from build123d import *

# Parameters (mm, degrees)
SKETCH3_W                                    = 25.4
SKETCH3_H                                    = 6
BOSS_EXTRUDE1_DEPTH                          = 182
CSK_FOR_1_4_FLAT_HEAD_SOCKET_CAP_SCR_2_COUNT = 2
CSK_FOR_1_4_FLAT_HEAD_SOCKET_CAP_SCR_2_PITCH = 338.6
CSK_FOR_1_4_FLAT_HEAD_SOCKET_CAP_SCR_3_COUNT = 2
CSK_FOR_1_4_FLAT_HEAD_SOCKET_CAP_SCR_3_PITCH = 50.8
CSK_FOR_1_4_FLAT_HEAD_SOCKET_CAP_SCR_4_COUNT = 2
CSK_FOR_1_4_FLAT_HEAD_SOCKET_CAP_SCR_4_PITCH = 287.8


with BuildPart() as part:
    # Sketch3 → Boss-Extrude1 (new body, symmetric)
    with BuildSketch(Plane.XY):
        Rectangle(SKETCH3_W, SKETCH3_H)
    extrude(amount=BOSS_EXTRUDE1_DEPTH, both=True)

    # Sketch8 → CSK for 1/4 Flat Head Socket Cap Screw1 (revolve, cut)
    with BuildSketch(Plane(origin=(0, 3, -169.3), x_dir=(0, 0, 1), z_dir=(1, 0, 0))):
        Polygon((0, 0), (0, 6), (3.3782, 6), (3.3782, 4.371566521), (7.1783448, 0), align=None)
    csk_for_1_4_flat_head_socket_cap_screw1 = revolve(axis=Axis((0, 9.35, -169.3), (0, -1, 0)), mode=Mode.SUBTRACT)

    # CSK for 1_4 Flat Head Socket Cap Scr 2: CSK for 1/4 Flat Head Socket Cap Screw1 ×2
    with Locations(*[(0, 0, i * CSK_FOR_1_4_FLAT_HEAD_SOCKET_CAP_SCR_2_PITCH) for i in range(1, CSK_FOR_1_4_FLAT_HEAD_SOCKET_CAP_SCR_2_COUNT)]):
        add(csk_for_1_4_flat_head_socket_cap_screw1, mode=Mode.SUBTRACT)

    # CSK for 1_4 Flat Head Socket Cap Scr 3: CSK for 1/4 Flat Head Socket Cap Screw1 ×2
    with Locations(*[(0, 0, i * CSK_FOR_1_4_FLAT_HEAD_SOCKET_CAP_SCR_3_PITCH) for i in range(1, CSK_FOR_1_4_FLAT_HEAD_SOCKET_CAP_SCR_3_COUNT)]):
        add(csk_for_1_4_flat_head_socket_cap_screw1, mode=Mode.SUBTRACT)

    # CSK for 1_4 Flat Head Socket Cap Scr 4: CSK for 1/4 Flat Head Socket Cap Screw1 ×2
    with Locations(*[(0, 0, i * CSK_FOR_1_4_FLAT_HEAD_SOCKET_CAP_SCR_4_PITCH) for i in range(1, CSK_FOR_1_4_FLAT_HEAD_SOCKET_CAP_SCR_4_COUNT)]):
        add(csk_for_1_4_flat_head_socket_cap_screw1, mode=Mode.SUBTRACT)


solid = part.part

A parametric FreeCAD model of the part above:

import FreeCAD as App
import Part
import Sketcher
Q = App.Units.Quantity

doc = App.newDocument("Part")
params = doc.addObject("Spreadsheet::Sheet", "Params")
for row, (alias, value) in enumerate([
    ("sketch1_height", "6 mm"),
    ("sketch1_width", "25.4 mm"),
    ("pad1_length", "364 mm"),
    ("sketch2_width", "6 mm"),
    ("groove_angle", "360 deg"),
    ("linearpattern_pitch", "338.6 mm"),
    ("linearpattern2_pitch", "50.8 mm"),
    ("linearpattern3_pitch", "287.8 mm"),
], start=1):
    params.set(f"A{row}", alias)
    params.set(f"B{row}", "=" + value)
    params.setAlias(f"B{row}", alias)

body = doc.addObject("PartDesign::Body", "Body")

sketch1 = body.newObject("Sketcher::SketchObject", "Sketch")
sketch1.AttachmentSupport = (doc.getObject("XY_Plane"), [""])
sketch1.MapMode = "FlatFace"
sketch1.addGeometry([
    Part.LineSegment(App.Vector(-13, 3, 0), App.Vector(-13, -3, 0)),
    Part.LineSegment(App.Vector(-13, -3, 0), App.Vector(13, -3, 0)),
    Part.LineSegment(App.Vector(13, -3, 0), App.Vector(13, 3, 0)),
    Part.LineSegment(App.Vector(13, 3, 0), App.Vector(-13, 3, 0)),
], False)
sketch1.addConstraint([
    Sketcher.Constraint("Coincident", 0, 2, 1, 1),
    Sketcher.Constraint("Coincident", 1, 2, 2, 1),
    Sketcher.Constraint("Coincident", 2, 2, 3, 1),
    Sketcher.Constraint("Coincident", 3, 2, 0, 1),
    Sketcher.Constraint("Vertical", 0),
    Sketcher.Constraint("Horizontal", 1),
    Sketcher.Constraint("Vertical", 2),
    Sketcher.Constraint("Horizontal", 3),
    Sketcher.Constraint("Symmetric", 0, 2, 2, 2, -1, 1),
    Sketcher.Constraint("DistanceY", 0, 2, 0, 1, 6.0),
    Sketcher.Constraint("DistanceX", 1, 1, 1, 2, 25.4),
])
sketch1.setExpression("Constraints[9]", "Params.sketch1_height")
sketch1.setExpression("Constraints[10]", "Params.sketch1_width")
pad1 = body.newObject("PartDesign::Pad", "Pad")
pad1.Profile = sketch1
pad1.setExpression("Length", "Params.pad1_length")
pad1.Midplane = True

sketch2 = body.newObject("Sketcher::SketchObject", "Sketch001")
sketch2.AttachmentSupport = (doc.getObject("YZ_Plane"), [""])
sketch2.MapMode = "FlatFace"
sketch2.addGeometry([
    Part.LineSegment(App.Vector(-3, -169.3, 0), App.Vector(3, -169.3, 0)),
    Part.LineSegment(App.Vector(3, -169.3, 0), App.Vector(3, -162.1, 0)),
    Part.LineSegment(App.Vector(3, -162.1, 0), App.Vector(-1.4, -165.9, 0)),
    Part.LineSegment(App.Vector(-1.4, -165.9, 0), App.Vector(-3, -165.9, 0)),
    Part.LineSegment(App.Vector(-3, -165.9, 0), App.Vector(-3, -169.3, 0)),
], False)
sketch2.addGeometry(Part.LineSegment(App.Vector(3, -169.3, 0), App.Vector(-3, -169.3, 0)), True)
sketch2.addConstraint([
    Sketcher.Constraint("Coincident", 0, 2, 1, 1),
    Sketcher.Constraint("Coincident", 1, 2, 2, 1),
    Sketcher.Constraint("Coincident", 2, 2, 3, 1),
    Sketcher.Constraint("Coincident", 3, 2, 4, 1),
    Sketcher.Constraint("Coincident", 4, 2, 0, 1),
    Sketcher.Constraint("Horizontal", 0),
    Sketcher.Constraint("Vertical", 1),
    Sketcher.Constraint("Horizontal", 3),
    Sketcher.Constraint("Vertical", 4),
    Sketcher.Constraint("Horizontal", 5),
    Sketcher.Constraint("Coincident", 5, 1, 0, 2),
    Sketcher.Constraint("Vertical", 3, 2, 5, 2),
    Sketcher.Constraint("DistanceX", 0, 1, 0, 2, 6.0),
    Sketcher.Constraint("Angle", 2, Q("-139 deg")),
    Sketcher.Constraint("DistanceX", -1, 1, 0, 2, 3.0),
    Sketcher.Constraint("DistanceY", 0, 2, -1, 1, 169.3),
    Sketcher.Constraint("DistanceY", 4, 2, 4, 1, 3.3782),
    Sketcher.Constraint("DistanceX", 3, 2, 3, 1, 1.628433),
])
sketch2.setExpression("Constraints[12]", "Params.sketch2_width")
groove = body.newObject("PartDesign::Groove", "Groove")
groove.Profile = sketch2
groove.ReferenceAxis = (sketch2, ["Axis0"])
groove.setExpression("Angle", "Params.groove_angle")
doc.recompute()

linearpattern = body.newObject("PartDesign::LinearPattern", "LinearPattern")
linearpattern.Originals = [groove]
linearpattern.Direction = (doc.getObject("Z_Axis"), [""])
linearpattern.Mode = "offset"
linearpattern.setExpression("Offset", "Params.linearpattern_pitch")
linearpattern.Occurrences = 2
body.Tip = linearpattern
doc.recompute()

linearpattern2 = body.newObject("PartDesign::LinearPattern", "LinearPattern001")
linearpattern2.Originals = [groove]
linearpattern2.Direction = (doc.getObject("Z_Axis"), [""])
linearpattern2.Mode = "offset"
linearpattern2.setExpression("Offset", "Params.linearpattern2_pitch")
linearpattern2.Occurrences = 2
body.Tip = linearpattern2
doc.recompute()

linearpattern3 = body.newObject("PartDesign::LinearPattern", "LinearPattern002")
linearpattern3.Originals = [groove]
linearpattern3.Direction = (doc.getObject("Z_Axis"), [""])
linearpattern3.Mode = "offset"
linearpattern3.setExpression("Offset", "Params.linearpattern3_pitch")
linearpattern3.Occurrences = 2
body.Tip = linearpattern3

doc.recompute()
